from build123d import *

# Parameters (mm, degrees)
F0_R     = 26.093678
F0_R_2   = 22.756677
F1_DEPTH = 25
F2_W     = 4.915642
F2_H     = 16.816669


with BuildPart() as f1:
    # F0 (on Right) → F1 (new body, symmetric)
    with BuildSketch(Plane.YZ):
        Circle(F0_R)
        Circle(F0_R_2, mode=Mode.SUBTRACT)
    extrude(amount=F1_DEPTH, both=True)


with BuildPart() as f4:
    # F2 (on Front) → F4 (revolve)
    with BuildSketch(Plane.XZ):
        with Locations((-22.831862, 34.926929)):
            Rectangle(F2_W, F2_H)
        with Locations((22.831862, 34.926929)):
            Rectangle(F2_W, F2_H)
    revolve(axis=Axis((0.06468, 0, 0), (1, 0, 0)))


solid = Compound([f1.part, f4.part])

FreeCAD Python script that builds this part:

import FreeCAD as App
import Part
import Sketcher


def add_polygon(sketch, points):
    """Adds a closed chain of lines whose ends are joined by coincident constraints."""
    first, n = sketch.GeometryCount, len(points)
    for a, b in zip(points, points[1:] + points[:1]):
        sketch.addGeometry(Part.LineSegment(App.Vector(*a, 0), App.Vector(*b, 0)), False)
    for i in range(n):
        sketch.addConstraint(Sketcher.Constraint("Coincident", first + i, 2, first + (i + 1) % n, 1))

doc = App.newDocument("Part")
body = doc.addObject("PartDesign::Body", "Body")

# Sketch on YZ plane
sketch1 = body.newObject("Sketcher::SketchObject", "Sketch")
sketch1.AttachmentSupport = (doc.getObject("YZ_Plane"), [""])
sketch1.MapMode = "FlatFace"
sketch1.addGeometry(Part.Circle(App.Vector(0, 0, 0), App.Vector(0, 0, 1), 26.093678), False)
sketch1.addGeometry(Part.Circle(App.Vector(0, 0, 0), App.Vector(0, 0, 1), 22.756677), False)
sketch1.addConstraint(Sketcher.Constraint("Coincident", 0, 3, -1, 1))
sketch1.addConstraint(Sketcher.Constraint("Coincident", 1, 3, -1, 1))
sketch1.addConstraint(Sketcher.Constraint("Diameter", 0, 52.187356))
sketch1.addConstraint(Sketcher.Constraint("Diameter", 1, 45.513354))
pad1 = body.newObject("PartDesign::Pad", "Pad")
pad1.Profile = sketch1
pad1.Length = 50
pad1.Midplane = True
body2 = doc.addObject("PartDesign::Body", "Body001")
body2.AllowCompound = True

# Sketch on XZ plane
sketch2 = body2.newObject("Sketcher::SketchObject", "Sketch001")
sketch2.AttachmentSupport = (doc.getObject("XZ_Plane001"), [""])
sketch2.MapMode = "FlatFace"
add_polygon(sketch2, [(-25.289683, 43.335264), (-25.289683, 26.518594), (-20.374041, 26.518594), (-20.374041, 43.335264)])  # lines 0-3
add_polygon(sketch2, [(20.374041, 43.335264), (20.374041, 26.518594), (25.289683, 26.518594), (25.289683, 43.335264)])  # lines 4-7
sketch2.addConstraint(Sketcher.Constraint("Vertical", 0))
sketch2.addConstraint(Sketcher.Constraint("Horizontal", 1))
sketch2.addConstraint(Sketcher.Constraint("Vertical", 2))
sketch2.addConstraint(Sketcher.Constraint("Horizontal", 3))
sketch2.addConstraint(Sketcher.Constraint("Vertical", 4))
sketch2.addConstraint(Sketcher.Constraint("Horizontal", 5))
sketch2.addConstraint(Sketcher.Constraint("Vertical", 6))
sketch2.addConstraint(Sketcher.Constraint("Horizontal", 7))
sketch2.addConstraint(Sketcher.Constraint("Symmetric", 1, 2, 4, 2, -2))
sketch2.addConstraint(Sketcher.Constraint("Symmetric", 3, 2, 6, 2, -2))
sketch2.addConstraint(Sketcher.Constraint("DistanceY", 0, 2, 0, 1, 16.816669))
sketch2.addConstraint(Sketcher.Constraint("DistanceX", 1, 1, 1, 2, 4.915642))
sketch2.addConstraint(Sketcher.Constraint("DistanceX", 1, 2, -1, 1, 20.374041))
sketch2.addConstraint(Sketcher.Constraint("DistanceY", -1, 1, 0, 2, 26.518594))
revolution = body2.newObject("PartDesign::Revolution", "Revolution")
revolution.Profile = sketch2
revolution.ReferenceAxis = (sketch2, ["H_Axis"])
revolution.Angle = 360

doc.recompute()
